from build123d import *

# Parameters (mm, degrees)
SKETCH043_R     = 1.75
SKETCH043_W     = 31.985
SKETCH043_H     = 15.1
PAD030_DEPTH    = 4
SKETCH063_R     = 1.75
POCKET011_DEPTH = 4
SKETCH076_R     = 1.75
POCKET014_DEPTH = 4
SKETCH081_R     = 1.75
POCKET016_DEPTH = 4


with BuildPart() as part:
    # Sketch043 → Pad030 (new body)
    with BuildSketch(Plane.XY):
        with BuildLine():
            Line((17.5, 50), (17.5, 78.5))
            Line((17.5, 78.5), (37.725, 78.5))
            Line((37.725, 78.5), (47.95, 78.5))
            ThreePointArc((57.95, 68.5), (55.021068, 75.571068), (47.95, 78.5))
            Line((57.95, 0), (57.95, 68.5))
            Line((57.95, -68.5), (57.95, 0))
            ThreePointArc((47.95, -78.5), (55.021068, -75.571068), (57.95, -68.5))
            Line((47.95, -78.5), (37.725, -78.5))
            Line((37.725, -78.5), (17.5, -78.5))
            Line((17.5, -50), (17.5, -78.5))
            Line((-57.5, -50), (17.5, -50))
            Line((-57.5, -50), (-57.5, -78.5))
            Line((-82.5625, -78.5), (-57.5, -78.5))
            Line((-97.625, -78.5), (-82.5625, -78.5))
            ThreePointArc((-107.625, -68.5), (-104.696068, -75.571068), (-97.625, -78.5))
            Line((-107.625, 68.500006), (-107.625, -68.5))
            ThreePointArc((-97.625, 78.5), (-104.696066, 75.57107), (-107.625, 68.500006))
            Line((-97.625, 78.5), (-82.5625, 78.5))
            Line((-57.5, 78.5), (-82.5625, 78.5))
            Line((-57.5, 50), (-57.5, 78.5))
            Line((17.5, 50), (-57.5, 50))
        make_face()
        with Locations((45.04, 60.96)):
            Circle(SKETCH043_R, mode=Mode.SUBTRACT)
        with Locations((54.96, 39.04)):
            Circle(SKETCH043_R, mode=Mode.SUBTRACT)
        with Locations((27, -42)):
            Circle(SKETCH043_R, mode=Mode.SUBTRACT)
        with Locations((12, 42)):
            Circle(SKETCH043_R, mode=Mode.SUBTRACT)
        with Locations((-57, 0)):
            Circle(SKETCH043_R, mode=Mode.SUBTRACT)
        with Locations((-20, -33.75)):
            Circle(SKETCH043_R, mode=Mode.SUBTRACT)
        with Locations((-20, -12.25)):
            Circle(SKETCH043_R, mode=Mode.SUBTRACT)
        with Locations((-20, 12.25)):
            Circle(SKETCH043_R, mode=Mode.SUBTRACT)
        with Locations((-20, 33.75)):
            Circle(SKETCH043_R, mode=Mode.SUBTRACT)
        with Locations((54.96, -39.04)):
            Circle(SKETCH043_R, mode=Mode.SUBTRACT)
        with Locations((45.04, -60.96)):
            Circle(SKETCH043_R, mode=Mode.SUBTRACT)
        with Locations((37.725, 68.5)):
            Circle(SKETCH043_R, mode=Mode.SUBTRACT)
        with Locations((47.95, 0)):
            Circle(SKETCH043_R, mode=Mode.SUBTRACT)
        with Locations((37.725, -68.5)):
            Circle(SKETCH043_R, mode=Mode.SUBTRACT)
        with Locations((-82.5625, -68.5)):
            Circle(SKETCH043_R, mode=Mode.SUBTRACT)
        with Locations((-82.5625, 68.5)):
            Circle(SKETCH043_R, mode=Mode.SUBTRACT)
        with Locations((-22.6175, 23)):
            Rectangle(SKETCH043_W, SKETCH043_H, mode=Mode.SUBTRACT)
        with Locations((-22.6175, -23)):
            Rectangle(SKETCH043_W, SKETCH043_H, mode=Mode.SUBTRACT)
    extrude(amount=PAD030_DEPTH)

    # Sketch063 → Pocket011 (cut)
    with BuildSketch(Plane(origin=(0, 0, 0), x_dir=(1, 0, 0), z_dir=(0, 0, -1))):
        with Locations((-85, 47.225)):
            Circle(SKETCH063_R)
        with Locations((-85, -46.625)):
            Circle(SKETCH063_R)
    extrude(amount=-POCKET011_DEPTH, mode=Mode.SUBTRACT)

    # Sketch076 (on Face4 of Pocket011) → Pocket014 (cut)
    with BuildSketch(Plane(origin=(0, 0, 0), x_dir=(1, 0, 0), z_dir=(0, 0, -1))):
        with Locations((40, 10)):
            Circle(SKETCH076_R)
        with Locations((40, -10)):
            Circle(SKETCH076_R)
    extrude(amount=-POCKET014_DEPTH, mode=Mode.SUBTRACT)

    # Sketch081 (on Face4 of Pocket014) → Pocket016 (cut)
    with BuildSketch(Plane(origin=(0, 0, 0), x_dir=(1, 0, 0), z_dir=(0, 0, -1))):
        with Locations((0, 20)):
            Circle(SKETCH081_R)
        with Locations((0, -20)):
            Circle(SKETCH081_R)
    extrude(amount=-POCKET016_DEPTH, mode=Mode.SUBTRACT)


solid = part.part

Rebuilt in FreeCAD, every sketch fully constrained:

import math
import FreeCAD as App
import Part
import Sketcher

doc = App.newDocument("Part")
body = doc.addObject("PartDesign::Body", "Body")

# Sketch on XY plane
sketch1 = doc.addObject("Sketcher::SketchObject", "Sketch")
body.addObject(sketch1)
sketch1.AttachmentSupport = (doc.XY_Plane, [""])
sketch1.MapMode = "FlatFace"
sketch1.addGeometry(Part.LineSegment(App.Vector(17.5, 78.5, 0), App.Vector(17.5, 50, 0)), False)
sketch1.addGeometry(Part.LineSegment(App.Vector(17.5, 50, 0), App.Vector(-57.5, 50, 0)), False)
sketch1.addGeometry(Part.LineSegment(App.Vector(-57.5, 50, 0), App.Vector(-57.5, 78.5, 0)), False)
sketch1.addGeometry(Part.LineSegment(App.Vector(-57.5, 78.5, 0), App.Vector(-97.6, 78.5, 0)), False)
sketch1.addGeometry(Part.ArcOfCircle(Part.Circle(App.Vector(-97.6, 68.5, 0), App.Vector(0, 0, 1), 10), math.radians(90), math.radians(180)), False)
sketch1.addGeometry(Part.LineSegment(App.Vector(-107.6, 68.5, 0), App.Vector(-107.6, -68.5, 0)), False)
sketch1.addGeometry(Part.ArcOfCircle(Part.Circle(App.Vector(-97.6, -68.5, 0), App.Vector(0, 0, 1), 10), math.radians(180), math.radians(270)), False)
sketch1.addGeometry(Part.LineSegment(App.Vector(-97.6, -78.5, 0), App.Vector(-57.5, -78.5, 0)), False)
sketch1.addGeometry(Part.LineSegment(App.Vector(-57.5, -78.5, 0), App.Vector(-57.5, -50, 0)), False)
sketch1.addGeometry(Part.LineSegment(App.Vector(-57.5, -50, 0), App.Vector(17.5, -50, 0)), False)
sketch1.addGeometry(Part.LineSegment(App.Vector(17.5, -50, 0), App.Vector(17.5, -78.5, 0)), False)
sketch1.addGeometry(Part.LineSegment(App.Vector(17.5, -78.5, 0), App.Vector(48, -78.5, 0)), False)
sketch1.addGeometry(Part.ArcOfCircle(Part.Circle(App.Vector(48, -68.5, 0), App.Vector(0, 0, 1), 10), math.radians(-90), math.radians(0)), False)
sketch1.addGeometry(Part.LineSegment(App.Vector(58, -68.5, 0), App.Vector(58, 68.5, 0)), False)
sketch1.addGeometry(Part.ArcOfCircle(Part.Circle(App.Vector(48, 68.5, 0), App.Vector(0, 0, 1), 10), math.radians(0), math.radians(90)), False)
sketch1.addGeometry(Part.LineSegment(App.Vector(48, 78.5, 0), App.Vector(17.5, 78.5, 0)), False)
sketch1.addGeometry(Part.Circle(App.Vector(45, -61, 0), App.Vector(0, 0, 1), 1.8), False)
sketch1.addGeometry(Part.Circle(App.Vector(37.7, -68.5, 0), App.Vector(0, 0, 1), 1.8), False)
sketch1.addGeometry(Part.Circle(App.Vector(55, -39, 0), App.Vector(0, 0, 1), 1.8), False)
sketch1.addGeometry(Part.Circle(App.Vector(27, -42, 0), App.Vector(0, 0, 1), 1.8), False)
sketch1.addGeometry(Part.Circle(App.Vector(-82.6, -68.5, 0), App.Vector(0, 0, 1), 1.8), False)
sketch1.addGeometry(Part.Circle(App.Vector(-20, -33.8, 0), App.Vector(0, 0, 1), 1.8), False)
sketch1.addGeometry(Part.LineSegment(App.Vector(-38.6, -30.6, 0), App.Vector(-38.6, -15.4, 0)), False)
sketch1.addGeometry(Part.LineSegment(App.Vector(-38.6, -15.4, 0), App.Vector(-6.6, -15.4, 0)), False)
sketch1.addGeometry(Part.LineSegment(App.Vector(-6.6, -15.4, 0), App.Vector(-6.6, -30.6, 0)), False)
sketch1.addGeometry(Part.LineSegment(App.Vector(-6.6, -30.6, 0), App.Vector(-38.6, -30.6, 0)), False)
sketch1.addGeometry(Part.Circle(App.Vector(-20, -12.2, 0), App.Vector(0, 0, 1), 1.8), False)
sketch1.addGeometry(Part.Circle(App.Vector(48, 0, 0), App.Vector(0, 0, 1), 1.8), False)
sketch1.addGeometry(Part.Circle(App.Vector(55, 39, 0), App.Vector(0, 0, 1), 1.8), False)
sketch1.addGeometry(Part.Circle(App.Vector(45, 61, 0), App.Vector(0, 0, 1), 1.8), False)
sketch1.addGeometry(Part.Circle(App.Vector(37.7, 68.5, 0), App.Vector(0, 0, 1), 1.8), False)
sketch1.addGeometry(Part.Circle(App.Vector(12, 42, 0), App.Vector(0, 0, 1), 1.8), False)
sketch1.addGeometry(Part.Circle(App.Vector(-20, 12.2, 0), App.Vector(0, 0, 1), 1.8), False)
sketch1.addGeometry(Part.LineSegment(App.Vector(-38.6, 15.4, 0), App.Vector(-38.6, 30.6, 0)), False)
sketch1.addGeometry(Part.LineSegment(App.Vector(-38.6, 30.6, 0), App.Vector(-6.6, 30.6, 0)), False)
sketch1.addGeometry(Part.LineSegment(App.Vector(-6.6, 30.6, 0), App.Vector(-6.6, 15.4, 0)), False)
sketch1.addGeometry(Part.LineSegment(App.Vector(-6.6, 15.4, 0), App.Vector(-38.6, 15.4, 0)), False)
sketch1.addGeometry(Part.Circle(App.Vector(-20, 33.8, 0), App.Vector(0, 0, 1), 1.8), False)
sketch1.addGeometry(Part.Circle(App.Vector(-57, 0, 0), App.Vector(0, 0, 1), 1.8), False)
sketch1.addGeometry(Part.Circle(App.Vector(-82.6, 68.5, 0), App.Vector(0, 0, 1), 1.8), False)
sketch1.addConstraint(Sketcher.Constraint("Coincident", 0, 2, 1, 1))
sketch1.addConstraint(Sketcher.Constraint("Coincident", 1, 2, 2, 1))
sketch1.addConstraint(Sketcher.Constraint("Coincident", 2, 2, 3, 1))
sketch1.addConstraint(Sketcher.Constraint("Tangent", 3, 2, 4, 1))
sketch1.addConstraint(Sketcher.Constraint("Tangent", 4, 2, 5, 1))
sketch1.addConstraint(Sketcher.Constraint("Tangent", 5, 2, 6, 1))
sketch1.addConstraint(Sketcher.Constraint("Tangent", 6, 2, 7, 1))
sketch1.addConstraint(Sketcher.Constraint("Coincident", 7, 2, 8, 1))
sketch1.addConstraint(Sketcher.Constraint("Coincident", 8, 2, 9, 1))
sketch1.addConstraint(Sketcher.Constraint("Coincident", 9, 2, 10, 1))
sketch1.addConstraint(Sketcher.Constraint("Coincident", 10, 2, 11, 1))
sketch1.addConstraint(Sketcher.Constraint("Tangent", 11, 2, 12, 1))
sketch1.addConstraint(Sketcher.Constraint("Tangent", 12, 2, 13, 1))
sketch1.addConstraint(Sketcher.Constraint("Tangent", 13, 2, 14, 1))
sketch1.addConstraint(Sketcher.Constraint("Tangent", 14, 2, 15, 1))
sketch1.addConstraint(Sketcher.Constraint("Coincident", 15, 2, 0, 1))
sketch1.addConstraint(Sketcher.Constraint("Coincident", 22, 2, 23, 1))
sketch1.addConstraint(Sketcher.Constraint("Coincident", 23, 2, 24, 1))
sketch1.addConstraint(Sketcher.Constraint("Coincident", 24, 2, 25, 1))
sketch1.addConstraint(Sketcher.Constraint("Coincident", 25, 2, 22, 1))
sketch1.addConstraint(Sketcher.Constraint("Coincident", 33, 2, 34, 1))
sketch1.addConstraint(Sketcher.Constraint("Coincident", 34, 2, 35, 1))
sketch1.addConstraint(Sketcher.Constraint("Coincident", 35, 2, 36, 1))
sketch1.addConstraint(Sketcher.Constraint("Coincident", 36, 2, 33, 1))
sketch1.addConstraint(Sketcher.Constraint("Vertical", 0))
sketch1.addConstraint(Sketcher.Constraint("Horizontal", 1))
sketch1.addConstraint(Sketcher.Constraint("Vertical", 2))
sketch1.addConstraint(Sketcher.Constraint("Horizontal", 3))
sketch1.addConstraint(Sketcher.Constraint("Vertical", 5))
sketch1.addConstraint(Sketcher.Constraint("Horizontal", 7))
sketch1.addConstraint(Sketcher.Constraint("Vertical", 8))
sketch1.addConstraint(Sketcher.Constraint("Horizontal", 9))
sketch1.addConstraint(Sketcher.Constraint("Vertical", 10))
sketch1.addConstraint(Sketcher.Constraint("Horizontal", 11))
sketch1.addConstraint(Sketcher.Constraint("Vertical", 13))
sketch1.addConstraint(Sketcher.Constraint("Horizontal", 15))
sketch1.addConstraint(Sketcher.Constraint("Vertical", 22))
sketch1.addConstraint(Sketcher.Constraint("Horizontal", 23))
sketch1.addConstraint(Sketcher.Constraint("Vertical", 24))
sketch1.addConstraint(Sketcher.Constraint("Horizontal", 25))
sketch1.addConstraint(Sketcher.Constraint("Vertical", 33))
sketch1.addConstraint(Sketcher.Constraint("Horizontal", 34))
sketch1.addConstraint(Sketcher.Constraint("Vertical", 35))
sketch1.addConstraint(Sketcher.Constraint("Horizontal", 36))
sketch1.addConstraint(Sketcher.Constraint("Equal", 4, 6))
sketch1.addConstraint(Sketcher.Constraint("Equal", 6, 12))
sketch1.addConstraint(Sketcher.Constraint("Equal", 12, 14))
sketch1.addConstraint(Sketcher.Constraint("Equal", 16, 17))
sketch1.addConstraint(Sketcher.Constraint("Equal", 17, 18))
sketch1.addConstraint(Sketcher.Constraint("Equal", 18, 19))
sketch1.addConstraint(Sketcher.Constraint("Equal", 19, 20))
sketch1.addConstraint(Sketcher.Constraint("Equal", 20, 21))
sketch1.addConstraint(Sketcher.Constraint("Equal", 21, 26))
sketch1.addConstraint(Sketcher.Constraint("Equal", 26, 27))
sketch1.addConstraint(Sketcher.Constraint("Equal", 27, 28))
sketch1.addConstraint(Sketcher.Constraint("Equal", 28, 29))
sketch1.addConstraint(Sketcher.Constraint("Equal", 29, 30))
sketch1.addConstraint(Sketcher.Constraint("Equal", 30, 31))
sketch1.addConstraint(Sketcher.Constraint("Equal", 31, 32))
sketch1.addConstraint(Sketcher.Constraint("Equal", 32, 37))
sketch1.addConstraint(Sketcher.Constraint("Equal", 37, 38))
sketch1.addConstraint(Sketcher.Constraint("Equal", 38, 39))
sketch1.addConstraint(Sketcher.Constraint("Symmetric", 18, 3, 28, 3, -1))
sketch1.addConstraint(Sketcher.Constraint("Symmetric", 16, 3, 29, 3, -1))
sketch1.addConstraint(Sketcher.Constraint("Symmetric", 17, 3, 30, 3, -1))
sketch1.addConstraint(Sketcher.Constraint("Symmetric", 26, 3, 32, 3, -1))
sketch1.addConstraint(Sketcher.Constraint("Symmetric", 21, 3, 37, 3, -1))
sketch1.addConstraint(Sketcher.Constraint("Symmetric", 20, 3, 39, 3, -1))
sketch1.addConstraint(Sketcher.Constraint("Symmetric", 2, 2, 7, 2, -1))
sketch1.addConstraint(Sketcher.Constraint("Symmetric", 0, 2, 9, 2, -1))
sketch1.addConstraint(Sketcher.Constraint("Symmetric", 25, 2, 33, 2, -1))
sketch1.addConstraint(Sketcher.Constraint("Symmetric", 23, 2, 35, 2, -1))
sketch1.addConstraint(Sketcher.Constraint("PointOnObject", 27, 3, -1))
sketch1.addConstraint(Sketcher.Constraint("PointOnObject", 38, 3, -1))
sketch1.addConstraint(Sketcher.Constraint("Horizontal", 6, 3, 12, 3))
sketch1.addConstraint(Sketcher.Constraint("Horizontal", 4, 3, 14, 3))
sketch1.addConstraint(Sketcher.Constraint("Horizontal", 12, 3, 17, 3))
sketch1.addConstraint(Sketcher.Constraint("Horizontal", 17, 3, 20, 3))
sketch1.addConstraint(Sketcher.Constraint("Vertical", 21, 3, 26, 3))
sketch1.addConstraint(Sketcher.Constraint("Vertical", 14, 3, 27, 3))
sketch1.addConstraint(Sketcher.Constraint("Radius", 4, 9.999999))
sketch1.addConstraint(Sketcher.Constraint("Diameter", 16, 3.5))
sketch1.addConstraint(Sketcher.Constraint("DistanceX", 1, 2, 1, 1, 75.0))
sketch1.addConstraint(Sketcher.Constraint("DistanceY", 13, 1, 13, 2, 137.0))
sketch1.addConstraint(Sketcher.Constraint("DistanceY", 0, 2, 0, 1, 28.5))
sketch1.addConstraint(Sketcher.Constraint("DistanceY", 22, 1, 22, 2, 15.1))
sketch1.addConstraint(Sketcher.Constraint("DistanceX", -1, 1, 19, 3, 27.0))
sketch1.addConstraint(Sketcher.Constraint("DistanceY", 19, 3, -1, 1, 42.0))
sketch1.addConstraint(Sketcher.Constraint("DistanceX", 21, 3, -1, 1, 20.0))
sketch1.addConstraint(Sketcher.Constraint("DistanceX", -1, 1, 31, 3, 12.0))
sketch1.addConstraint(Sketcher.Constraint("DistanceY", -1, 1, 31, 3, 42.0))
sketch1.addConstraint(Sketcher.Constraint("DistanceX", 38, 3, -1, 1, 57.0))
sketch1.addConstraint(Sketcher.Constraint("DistanceY", 18, 3, 29, 3, 100.0))
sketch1.addConstraint(Sketcher.Constraint("DistanceY", 21, 3, 32, 3, 46.0))
sketch1.addConstraint(Sketcher.Constraint("DistanceY", 22, 2, 33, 2, 46.0))
sketch1.addConstraint(Sketcher.Constraint("DistanceX", 11, 1, 11, 2, 30.45))
sketch1.addConstraint(Sketcher.Constraint("DistanceX", -1, 1, 0, 2, 17.5))
sketch1.addConstraint(Sketcher.Constraint("DistanceY", 21, 3, 26, 3, 21.5))
sketch1.addConstraint(Sketcher.Constraint("DistanceX", 3, 2, 3, 1, 40.125))
sketch1.addConstraint(Sketcher.Constraint("DistanceX", 23, 1, 23, 2, 31.985))
sketch1.addConstraint(Sketcher.Constraint("DistanceX", -1, 1, 16, 3, 45.04))
sketch1.addConstraint(Sketcher.Constraint("DistanceY", 16, 3, -1, 1, 60.96))
sketch1.addConstraint(Sketcher.Constraint("DistanceX", -1, 1, 18, 3, 54.96))
sketch1.addConstraint(Sketcher.Constraint("DistanceX", 22, 2, -1, 1, 38.61))
sketch1.addConstraint(Sketcher.Constraint("DistanceX", 6, 3, 17, 3, 135.350001))
sketch1.addConstraint(Sketcher.Constraint("DistanceX", 20, 3, -1, 1, 82.5625))
pad1 = doc.addObject("PartDesign::Pad", "Pad")
body.addObject(pad1)
pad1.Profile = sketch1
pad1.Length = 4

# Sketch on XY plane
sketch2 = doc.addObject("Sketcher::SketchObject", "Sketch001")
body.addObject(sketch2)
sketch2.AttachmentSupport = (doc.XY_Plane, [""])
sketch2.MapMode = "FlatFace"
sketch2.addGeometry(Part.Circle(App.Vector(-85, -47.2, 0), App.Vector(0, 0, 1), 1.8), False)
sketch2.addGeometry(Part.Circle(App.Vector(-85, 46.6, 0), App.Vector(0, 0, 1), 1.8), False)
sketch2.addConstraint(Sketcher.Constraint("Equal", 0, 1))
sketch2.addConstraint(Sketcher.Constraint("Vertical", 0, 3, 1, 3))
sketch2.addConstraint(Sketcher.Constraint("Diameter", 0, 3.5))
sketch2.addConstraint(Sketcher.Constraint("DistanceX", 0, 3, -1, 1, 85.0))
sketch2.addConstraint(Sketcher.Constraint("DistanceY", 0, 3, 1, 3, 93.85))
sketch2.addConstraint(Sketcher.Constraint("DistanceY", 0, 3, -1, 1, 47.225))
pocket1 = doc.addObject("PartDesign::Pocket", "Pocket")
body.addObject(pocket1)
pocket1.Profile = sketch2
pocket1.Length = 4
pocket1.Reversed = True

# Sketch on XY plane
sketch3 = doc.addObject("Sketcher::SketchObject", "Sketch002")
body.addObject(sketch3)
sketch3.AttachmentSupport = (doc.XY_Plane, [""])
sketch3.MapMode = "FlatFace"
sketch3.addGeometry(Part.Circle(App.Vector(40, -10, 0), App.Vector(0, 0, 1), 1.8), False)
sketch3.addGeometry(Part.Circle(App.Vector(40, 10, 0), App.Vector(0, 0, 1), 1.8), False)
sketch3.addConstraint(Sketcher.Constraint("Equal", 0, 1))
sketch3.addConstraint(Sketcher.Constraint("Symmetric", 0, 3, 1, 3, -1))
sketch3.addConstraint(Sketcher.Constraint("Diameter", 0, 3.5))
sketch3.addConstraint(Sketcher.Constraint("DistanceX", -1, 1, 0, 3, 40.0))
sketch3.addConstraint(Sketcher.Constraint("DistanceY", 0, 3, -1, 1, 10.0))
pocket2 = doc.addObject("PartDesign::Pocket", "Pocket001")
body.addObject(pocket2)
pocket2.Profile = sketch3
pocket2.Length = 4
pocket2.Reversed = True

# Sketch on XY plane
sketch4 = doc.addObject("Sketcher::SketchObject", "Sketch003")
body.addObject(sketch4)
sketch4.AttachmentSupport = (doc.XY_Plane, [""])
sketch4.MapMode = "FlatFace"
sketch4.addGeometry(Part.Circle(App.Vector(0, -20, 0), App.Vector(0, 0, 1), 1.8), False)
sketch4.addGeometry(Part.Circle(App.Vector(0, 20, 0), App.Vector(0, 0, 1), 1.8), False)
sketch4.addConstraint(Sketcher.Constraint("Equal", 0, 1))
sketch4.addConstraint(Sketcher.Constraint("Symmetric", 0, 3, 1, 3, -1, 1))
sketch4.addConstraint(Sketcher.Constraint("PointOnObject", 0, 3, -2))
sketch4.addConstraint(Sketcher.Constraint("Diameter", 0, 3.5))
sketch4.addConstraint(Sketcher.Constraint("DistanceY", 0, 3, -1, 1, 20.0))
pocket3 = doc.addObject("PartDesign::Pocket", "Pocket002")
body.addObject(pocket3)
pocket3.Profile = sketch4
pocket3.Length = 4
pocket3.Reversed = True

doc.recompute()
